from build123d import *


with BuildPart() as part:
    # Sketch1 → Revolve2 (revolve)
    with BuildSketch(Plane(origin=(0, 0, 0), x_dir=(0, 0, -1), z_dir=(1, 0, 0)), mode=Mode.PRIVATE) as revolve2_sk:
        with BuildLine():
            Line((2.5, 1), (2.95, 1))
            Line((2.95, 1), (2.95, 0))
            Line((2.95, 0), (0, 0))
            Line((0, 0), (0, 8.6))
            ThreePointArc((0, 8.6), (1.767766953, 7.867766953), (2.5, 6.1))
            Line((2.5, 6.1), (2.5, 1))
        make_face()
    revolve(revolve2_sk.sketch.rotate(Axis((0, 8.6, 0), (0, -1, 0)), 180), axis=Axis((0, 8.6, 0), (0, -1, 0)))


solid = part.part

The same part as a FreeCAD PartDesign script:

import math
import FreeCAD as App
import Part
import Sketcher

V = App.Vector

doc = App.newDocument("Part")
params = doc.addObject("Spreadsheet::Sheet", "Params")
for row, (alias, value) in enumerate([
    ("sketch1_radius", "2.5 mm"),
    ("sketch1_width", "1 mm"),
    ("sketch1_width2", "5.1 mm"),
    ("sketch1_height", "0.45 mm"),
    ("revolution_angle", "360 deg"),
], start=1):
    params.set(f"A{row}", alias)
    params.set(f"B{row}", "=" + value)
    params.setAlias(f"B{row}", alias)

body = doc.addObject("PartDesign::Body", "Body")

sketch1 = doc.addObject("Sketcher::SketchObject", "Sketch")
body.addObject(sketch1)
sketch1.AttachmentSupport = (doc.YZ_Plane, [""])
sketch1.MapMode = "FlatFace"
sketch1.addGeometry([
    Part.LineSegment(V(1, -2.95, 0), V(1, -2.5, 0)),
    Part.LineSegment(V(1, -2.5, 0), V(6.1, -2.5, 0)),
    Part.ArcOfCircle(Part.Circle(V(6.1, 0, 0), V(0, 0, 1), 2.5), math.radians(-90), math.radians(0)),
    Part.LineSegment(V(8.6, 0, 0), V(0, 0, 0)),
    Part.LineSegment(V(0, 0, 0), V(0, -2.95, 0)),
    Part.LineSegment(V(0, -2.95, 0), V(1, -2.95, 0)),
], False)
sketch1.addConstraint([
    Sketcher.Constraint("Coincident", 0, 2, 1, 1),
    Sketcher.Constraint("Tangent", 1, 2, 2, 1),
    Sketcher.Constraint("Coincident", 2, 2, 3, 1),
    Sketcher.Constraint("Coincident", 3, 2, 4, 1),
    Sketcher.Constraint("Coincident", 4, 2, 5, 1),
    Sketcher.Constraint("Coincident", 5, 2, 0, 1),
    Sketcher.Constraint("Vertical", 0),
    Sketcher.Constraint("Horizontal", 1),
    Sketcher.Constraint("Horizontal", 3),
    Sketcher.Constraint("Vertical", 4),
    Sketcher.Constraint("Horizontal", 5),
    Sketcher.Constraint("Coincident", 3, 2, -1, 1),
    Sketcher.Constraint("PointOnObject", 2, 3, -1),
    Sketcher.Constraint("Radius", 2, 2.5),
    Sketcher.Constraint("DistanceX", 5, 1, 5, 2, 1.0),
    Sketcher.Constraint("DistanceX", 1, 1, 1, 2, 5.1),
    Sketcher.Constraint("DistanceY", 0, 1, 0, 2, 0.45),
])
sketch1.setExpression("Constraints[13]", "Params.sketch1_radius")
sketch1.setExpression("Constraints[14]", "Params.sketch1_width")
sketch1.setExpression("Constraints[15]", "Params.sketch1_width2")
sketch1.setExpression("Constraints[16]", "Params.sketch1_height")
revolution = doc.addObject("PartDesign::Revolution", "Revolution")
body.addObject(revolution)
revolution.Profile = sketch1
revolution.ReferenceAxis = (sketch1, ["H_Axis"])
revolution.setExpression("Angle", "Params.revolution_angle")

doc.recompute()
